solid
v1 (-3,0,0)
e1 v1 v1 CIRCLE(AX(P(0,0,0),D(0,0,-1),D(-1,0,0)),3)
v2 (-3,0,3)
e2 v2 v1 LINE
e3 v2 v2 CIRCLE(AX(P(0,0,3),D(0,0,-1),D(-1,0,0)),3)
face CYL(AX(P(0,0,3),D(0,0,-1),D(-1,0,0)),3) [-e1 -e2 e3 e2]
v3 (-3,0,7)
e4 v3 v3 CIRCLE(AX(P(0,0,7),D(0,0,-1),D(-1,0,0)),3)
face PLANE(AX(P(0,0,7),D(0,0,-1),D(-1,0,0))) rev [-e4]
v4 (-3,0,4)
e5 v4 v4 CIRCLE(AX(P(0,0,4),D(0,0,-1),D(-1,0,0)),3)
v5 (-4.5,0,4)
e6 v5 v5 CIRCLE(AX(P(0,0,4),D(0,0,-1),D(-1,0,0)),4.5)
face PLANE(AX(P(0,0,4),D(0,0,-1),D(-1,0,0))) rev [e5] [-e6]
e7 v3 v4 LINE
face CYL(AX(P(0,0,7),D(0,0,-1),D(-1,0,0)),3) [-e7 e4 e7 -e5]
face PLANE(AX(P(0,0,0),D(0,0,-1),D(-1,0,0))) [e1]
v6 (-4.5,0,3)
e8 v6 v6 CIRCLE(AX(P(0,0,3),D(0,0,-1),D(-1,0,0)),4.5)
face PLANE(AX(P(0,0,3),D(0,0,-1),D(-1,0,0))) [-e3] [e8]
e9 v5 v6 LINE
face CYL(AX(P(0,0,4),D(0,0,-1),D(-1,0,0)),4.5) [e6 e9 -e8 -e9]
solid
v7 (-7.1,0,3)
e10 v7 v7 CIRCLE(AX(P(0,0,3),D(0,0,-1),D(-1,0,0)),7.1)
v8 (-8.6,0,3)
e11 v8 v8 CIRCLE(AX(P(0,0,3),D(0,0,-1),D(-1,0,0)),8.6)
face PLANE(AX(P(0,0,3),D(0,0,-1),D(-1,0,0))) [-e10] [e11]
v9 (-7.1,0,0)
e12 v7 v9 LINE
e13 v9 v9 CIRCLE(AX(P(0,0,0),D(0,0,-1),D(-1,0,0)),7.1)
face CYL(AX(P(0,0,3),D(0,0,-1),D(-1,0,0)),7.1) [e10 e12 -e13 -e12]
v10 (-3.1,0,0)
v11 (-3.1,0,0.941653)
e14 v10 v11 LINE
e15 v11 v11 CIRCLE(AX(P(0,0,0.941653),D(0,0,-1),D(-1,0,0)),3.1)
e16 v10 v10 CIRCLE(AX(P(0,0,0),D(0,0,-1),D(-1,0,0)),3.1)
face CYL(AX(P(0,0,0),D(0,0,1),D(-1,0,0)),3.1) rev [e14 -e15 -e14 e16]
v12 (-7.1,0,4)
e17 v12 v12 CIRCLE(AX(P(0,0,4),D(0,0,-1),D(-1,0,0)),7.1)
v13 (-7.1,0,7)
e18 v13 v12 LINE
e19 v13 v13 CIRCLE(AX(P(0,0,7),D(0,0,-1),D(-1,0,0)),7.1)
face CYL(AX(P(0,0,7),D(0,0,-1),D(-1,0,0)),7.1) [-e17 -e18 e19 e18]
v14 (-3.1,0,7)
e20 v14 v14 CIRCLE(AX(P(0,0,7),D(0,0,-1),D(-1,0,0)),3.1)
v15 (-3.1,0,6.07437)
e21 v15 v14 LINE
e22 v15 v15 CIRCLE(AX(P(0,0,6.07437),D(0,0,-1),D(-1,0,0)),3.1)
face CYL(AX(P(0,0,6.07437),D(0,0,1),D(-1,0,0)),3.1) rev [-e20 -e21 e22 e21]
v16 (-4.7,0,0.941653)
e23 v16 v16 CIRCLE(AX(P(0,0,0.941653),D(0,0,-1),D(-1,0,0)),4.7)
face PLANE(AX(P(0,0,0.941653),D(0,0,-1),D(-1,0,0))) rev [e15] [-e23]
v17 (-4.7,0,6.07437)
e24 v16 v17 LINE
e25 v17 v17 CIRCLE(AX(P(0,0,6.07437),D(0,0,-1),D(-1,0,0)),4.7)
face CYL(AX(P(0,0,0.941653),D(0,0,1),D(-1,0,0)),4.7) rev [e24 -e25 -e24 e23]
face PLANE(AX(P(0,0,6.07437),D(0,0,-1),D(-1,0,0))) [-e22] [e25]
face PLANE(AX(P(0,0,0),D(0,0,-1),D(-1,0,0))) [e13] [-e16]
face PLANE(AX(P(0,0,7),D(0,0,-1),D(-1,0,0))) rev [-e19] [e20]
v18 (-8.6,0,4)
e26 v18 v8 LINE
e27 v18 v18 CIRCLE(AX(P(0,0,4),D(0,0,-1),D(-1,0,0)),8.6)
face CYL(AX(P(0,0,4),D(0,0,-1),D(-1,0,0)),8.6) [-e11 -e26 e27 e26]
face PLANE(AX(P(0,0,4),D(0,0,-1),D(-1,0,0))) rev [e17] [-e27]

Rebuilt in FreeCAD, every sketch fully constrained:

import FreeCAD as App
import Part
import Sketcher

V = App.Vector

doc = App.newDocument("Part")
body = doc.addObject("PartDesign::Body", "Body")
body.AllowCompound = True

sketch1 = body.newObject("Sketcher::SketchObject", "Sketch")
sketch1.AttachmentSupport = (doc.getObject("XZ_Plane"), [""])
sketch1.MapMode = "FlatFace"
sketch1.addGeometry([
    Part.LineSegment(V(-7.1, 0, 0), V(-3.1, 0, 0)),
    Part.LineSegment(V(-3.1, 0, 0), V(-3.1, 0.941653, 0)),
    Part.LineSegment(V(-3.1, 0.941653, 0), V(-4.7, 0.941653, 0)),
    Part.LineSegment(V(-4.7, 0.941653, 0), V(-4.7, 6.07437, 0)),
    Part.LineSegment(V(-4.7, 6.07437, 0), V(-3.1, 6.07437, 0)),
    Part.LineSegment(V(-3.1, 6.07437, 0), V(-3.1, 7, 0)),
    Part.LineSegment(V(-3.1, 7, 0), V(-7.1, 7, 0)),
    Part.LineSegment(V(-7.1, 7, 0), V(-7.1, 4, 0)),
    Part.LineSegment(V(-7.1, 4, 0), V(-8.6, 4, 0)),
    Part.LineSegment(V(-8.6, 4, 0), V(-8.6, 3, 0)),
    Part.LineSegment(V(-8.6, 3, 0), V(-7.1, 3, 0)),
    Part.LineSegment(V(-7.1, 3, 0), V(-7.1, 0, 0)),
    Part.LineSegment(V(-3, 0, 0), V(0, 0, 0)),
    Part.LineSegment(V(0, 0, 0), V(0, 7, 0)),
    Part.LineSegment(V(0, 7, 0), V(-3, 7, 0)),
    Part.LineSegment(V(-3, 7, 0), V(-3, 4, 0)),
    Part.LineSegment(V(-3, 4, 0), V(-4.5, 4, 0)),
    Part.LineSegment(V(-4.5, 4, 0), V(-4.5, 3, 0)),
    Part.LineSegment(V(-4.5, 3, 0), V(-3, 3, 0)),
    Part.LineSegment(V(-3, 3, 0), V(-3, 0, 0)),
], False)
sketch1.addConstraint([
    Sketcher.Constraint("Coincident", 0, 2, 1, 1),
    Sketcher.Constraint("Coincident", 1, 2, 2, 1),
    Sketcher.Constraint("Coincident", 2, 2, 3, 1),
    Sketcher.Constraint("Coincident", 3, 2, 4, 1),
    Sketcher.Constraint("Coincident", 4, 2, 5, 1),
    Sketcher.Constraint("Coincident", 5, 2, 6, 1),
    Sketcher.Constraint("Coincident", 6, 2, 7, 1),
    Sketcher.Constraint("Coincident", 7, 2, 8, 1),
    Sketcher.Constraint("Coincident", 8, 2, 9, 1),
    Sketcher.Constraint("Coincident", 9, 2, 10, 1),
    Sketcher.Constraint("Coincident", 10, 2, 11, 1),
    Sketcher.Constraint("Coincident", 11, 2, 0, 1),
    Sketcher.Constraint("Coincident", 12, 2, 13, 1),
    Sketcher.Constraint("Coincident", 13, 2, 14, 1),
    Sketcher.Constraint("Coincident", 14, 2, 15, 1),
    Sketcher.Constraint("Coincident", 15, 2, 16, 1),
    Sketcher.Constraint("Coincident", 16, 2, 17, 1),
    Sketcher.Constraint("Coincident", 17, 2, 18, 1),
    Sketcher.Constraint("Coincident", 18, 2, 19, 1),
    Sketcher.Constraint("Coincident", 19, 2, 12, 1),
    Sketcher.Constraint("Horizontal", 0),
    Sketcher.Constraint("Vertical", 1),
    Sketcher.Constraint("Horizontal", 2),
    Sketcher.Constraint("Vertical", 3),
    Sketcher.Constraint("Horizontal", 4),
    Sketcher.Constraint("Vertical", 5),
    Sketcher.Constraint("Horizontal", 6),
    Sketcher.Constraint("Vertical", 7),
    Sketcher.Constraint("Horizontal", 8),
    Sketcher.Constraint("Vertical", 9),
    Sketcher.Constraint("Horizontal", 10),
    Sketcher.Constraint("Vertical", 11),
    Sketcher.Constraint("Horizontal", 12),
    Sketcher.Constraint("Vertical", 13),
    Sketcher.Constraint("Horizontal", 14),
    Sketcher.Constraint("Vertical", 15),
    Sketcher.Constraint("Horizontal", 16),
    Sketcher.Constraint("Vertical", 17),
    Sketcher.Constraint("Horizontal", 18),
    Sketcher.Constraint("Vertical", 19),
    Sketcher.Constraint("Coincident", 12, 2, -1, 1),
    Sketcher.Constraint("PointOnObject", 0, 2, -1),
    Sketcher.Constraint("Horizontal", 6, 2, 13, 2),
    Sketcher.Constraint("Horizontal", 8, 2, 15, 2),
    Sketcher.Constraint("Horizontal", 10, 2, 17, 2),
    Sketcher.Constraint("Vertical", 1, 2, 4, 2),
    Sketcher.Constraint("Vertical", 7, 2, 10, 2),
    Sketcher.Constraint("Vertical", 15, 2, 18, 2),
    Sketcher.Constraint("Equal", 10, 16),
    Sketcher.Constraint("Equal", 14, 7),
    Sketcher.Constraint("Equal", 7, 11),
    Sketcher.Constraint("DistanceX", 0, 1, 0, 2, 4.0),
    Sketcher.Constraint("DistanceX", 12, 1, 12, 2, 3.0),
    Sketcher.Constraint("DistanceY", 9, 2, 9, 1, 1.0),
    Sketcher.Constraint("DistanceX", 2, 2, 2, 1, 1.6),
    Sketcher.Constraint("DistanceX", 8, 2, 8, 1, 1.5),
    Sketcher.Constraint("DistanceX", 0, 2, -1, 1, 3.1),
    Sketcher.Constraint("DistanceY", 5, 1, 5, 2, 0.92563),
    Sketcher.Constraint("DistanceY", 1, 1, 1, 2, 0.941653),
])
revolution = body.newObject("PartDesign::Revolution", "Revolution")
revolution.Profile = sketch1
revolution.ReferenceAxis = (sketch1, ["V_Axis"])
revolution.Angle = 360

doc.recompute()
